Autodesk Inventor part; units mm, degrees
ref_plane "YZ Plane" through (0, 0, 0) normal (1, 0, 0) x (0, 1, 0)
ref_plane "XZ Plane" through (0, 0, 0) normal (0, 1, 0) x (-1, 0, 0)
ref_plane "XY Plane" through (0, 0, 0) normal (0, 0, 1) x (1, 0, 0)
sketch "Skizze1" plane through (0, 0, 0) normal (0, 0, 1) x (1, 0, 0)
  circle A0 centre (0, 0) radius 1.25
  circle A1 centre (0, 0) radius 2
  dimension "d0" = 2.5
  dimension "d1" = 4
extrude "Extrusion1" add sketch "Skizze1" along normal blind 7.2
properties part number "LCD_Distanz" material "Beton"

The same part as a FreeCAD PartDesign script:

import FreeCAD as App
import Part
import Sketcher

V = App.Vector

doc = App.newDocument("Part")
params = doc.addObject("Spreadsheet::Sheet", "Params")
for row, (alias, value) in enumerate([
    ("sketch1_diameter", "4 mm"),
    ("sketch1_diameter2", "2.5 mm"),
    ("pad1_length", "7.2 mm"),
], start=1):
    params.set(f"A{row}", alias)
    params.set(f"B{row}", "=" + value)
    params.setAlias(f"B{row}", alias)

body = doc.addObject("PartDesign::Body", "Body")

# Sketch on XY plane
sketch1 = doc.addObject("Sketcher::SketchObject", "Sketch")
body.addObject(sketch1)
sketch1.AttachmentSupport = (doc.XY_Plane, [""])
sketch1.MapMode = "FlatFace"
sketch1.addGeometry(Part.Circle(V(0, 0, 0), V(0, 0, 1), 2), False)
sketch1.addGeometry(Part.Circle(V(0, 0, 0), V(0, 0, 1), 1.25), False)
sketch1.addConstraint(Sketcher.Constraint("Coincident", 0, 3, -1, 1))
sketch1.addConstraint(Sketcher.Constraint("Coincident", 1, 3, -1, 1))
sketch1.addConstraint(Sketcher.Constraint("Diameter", 0, 4.0))
sketch1.addConstraint(Sketcher.Constraint("Diameter", 1, 2.5))
sketch1.setExpression("Constraints[2]", "Params.sketch1_diameter")
sketch1.setExpression("Constraints[3]", "Params.sketch1_diameter2")
pad1 = doc.addObject("PartDesign::Pad", "Pad")
body.addObject(pad1)
pad1.Profile = sketch1
pad1.setExpression("Length", "Params.pad1_length")

doc.recompute()
